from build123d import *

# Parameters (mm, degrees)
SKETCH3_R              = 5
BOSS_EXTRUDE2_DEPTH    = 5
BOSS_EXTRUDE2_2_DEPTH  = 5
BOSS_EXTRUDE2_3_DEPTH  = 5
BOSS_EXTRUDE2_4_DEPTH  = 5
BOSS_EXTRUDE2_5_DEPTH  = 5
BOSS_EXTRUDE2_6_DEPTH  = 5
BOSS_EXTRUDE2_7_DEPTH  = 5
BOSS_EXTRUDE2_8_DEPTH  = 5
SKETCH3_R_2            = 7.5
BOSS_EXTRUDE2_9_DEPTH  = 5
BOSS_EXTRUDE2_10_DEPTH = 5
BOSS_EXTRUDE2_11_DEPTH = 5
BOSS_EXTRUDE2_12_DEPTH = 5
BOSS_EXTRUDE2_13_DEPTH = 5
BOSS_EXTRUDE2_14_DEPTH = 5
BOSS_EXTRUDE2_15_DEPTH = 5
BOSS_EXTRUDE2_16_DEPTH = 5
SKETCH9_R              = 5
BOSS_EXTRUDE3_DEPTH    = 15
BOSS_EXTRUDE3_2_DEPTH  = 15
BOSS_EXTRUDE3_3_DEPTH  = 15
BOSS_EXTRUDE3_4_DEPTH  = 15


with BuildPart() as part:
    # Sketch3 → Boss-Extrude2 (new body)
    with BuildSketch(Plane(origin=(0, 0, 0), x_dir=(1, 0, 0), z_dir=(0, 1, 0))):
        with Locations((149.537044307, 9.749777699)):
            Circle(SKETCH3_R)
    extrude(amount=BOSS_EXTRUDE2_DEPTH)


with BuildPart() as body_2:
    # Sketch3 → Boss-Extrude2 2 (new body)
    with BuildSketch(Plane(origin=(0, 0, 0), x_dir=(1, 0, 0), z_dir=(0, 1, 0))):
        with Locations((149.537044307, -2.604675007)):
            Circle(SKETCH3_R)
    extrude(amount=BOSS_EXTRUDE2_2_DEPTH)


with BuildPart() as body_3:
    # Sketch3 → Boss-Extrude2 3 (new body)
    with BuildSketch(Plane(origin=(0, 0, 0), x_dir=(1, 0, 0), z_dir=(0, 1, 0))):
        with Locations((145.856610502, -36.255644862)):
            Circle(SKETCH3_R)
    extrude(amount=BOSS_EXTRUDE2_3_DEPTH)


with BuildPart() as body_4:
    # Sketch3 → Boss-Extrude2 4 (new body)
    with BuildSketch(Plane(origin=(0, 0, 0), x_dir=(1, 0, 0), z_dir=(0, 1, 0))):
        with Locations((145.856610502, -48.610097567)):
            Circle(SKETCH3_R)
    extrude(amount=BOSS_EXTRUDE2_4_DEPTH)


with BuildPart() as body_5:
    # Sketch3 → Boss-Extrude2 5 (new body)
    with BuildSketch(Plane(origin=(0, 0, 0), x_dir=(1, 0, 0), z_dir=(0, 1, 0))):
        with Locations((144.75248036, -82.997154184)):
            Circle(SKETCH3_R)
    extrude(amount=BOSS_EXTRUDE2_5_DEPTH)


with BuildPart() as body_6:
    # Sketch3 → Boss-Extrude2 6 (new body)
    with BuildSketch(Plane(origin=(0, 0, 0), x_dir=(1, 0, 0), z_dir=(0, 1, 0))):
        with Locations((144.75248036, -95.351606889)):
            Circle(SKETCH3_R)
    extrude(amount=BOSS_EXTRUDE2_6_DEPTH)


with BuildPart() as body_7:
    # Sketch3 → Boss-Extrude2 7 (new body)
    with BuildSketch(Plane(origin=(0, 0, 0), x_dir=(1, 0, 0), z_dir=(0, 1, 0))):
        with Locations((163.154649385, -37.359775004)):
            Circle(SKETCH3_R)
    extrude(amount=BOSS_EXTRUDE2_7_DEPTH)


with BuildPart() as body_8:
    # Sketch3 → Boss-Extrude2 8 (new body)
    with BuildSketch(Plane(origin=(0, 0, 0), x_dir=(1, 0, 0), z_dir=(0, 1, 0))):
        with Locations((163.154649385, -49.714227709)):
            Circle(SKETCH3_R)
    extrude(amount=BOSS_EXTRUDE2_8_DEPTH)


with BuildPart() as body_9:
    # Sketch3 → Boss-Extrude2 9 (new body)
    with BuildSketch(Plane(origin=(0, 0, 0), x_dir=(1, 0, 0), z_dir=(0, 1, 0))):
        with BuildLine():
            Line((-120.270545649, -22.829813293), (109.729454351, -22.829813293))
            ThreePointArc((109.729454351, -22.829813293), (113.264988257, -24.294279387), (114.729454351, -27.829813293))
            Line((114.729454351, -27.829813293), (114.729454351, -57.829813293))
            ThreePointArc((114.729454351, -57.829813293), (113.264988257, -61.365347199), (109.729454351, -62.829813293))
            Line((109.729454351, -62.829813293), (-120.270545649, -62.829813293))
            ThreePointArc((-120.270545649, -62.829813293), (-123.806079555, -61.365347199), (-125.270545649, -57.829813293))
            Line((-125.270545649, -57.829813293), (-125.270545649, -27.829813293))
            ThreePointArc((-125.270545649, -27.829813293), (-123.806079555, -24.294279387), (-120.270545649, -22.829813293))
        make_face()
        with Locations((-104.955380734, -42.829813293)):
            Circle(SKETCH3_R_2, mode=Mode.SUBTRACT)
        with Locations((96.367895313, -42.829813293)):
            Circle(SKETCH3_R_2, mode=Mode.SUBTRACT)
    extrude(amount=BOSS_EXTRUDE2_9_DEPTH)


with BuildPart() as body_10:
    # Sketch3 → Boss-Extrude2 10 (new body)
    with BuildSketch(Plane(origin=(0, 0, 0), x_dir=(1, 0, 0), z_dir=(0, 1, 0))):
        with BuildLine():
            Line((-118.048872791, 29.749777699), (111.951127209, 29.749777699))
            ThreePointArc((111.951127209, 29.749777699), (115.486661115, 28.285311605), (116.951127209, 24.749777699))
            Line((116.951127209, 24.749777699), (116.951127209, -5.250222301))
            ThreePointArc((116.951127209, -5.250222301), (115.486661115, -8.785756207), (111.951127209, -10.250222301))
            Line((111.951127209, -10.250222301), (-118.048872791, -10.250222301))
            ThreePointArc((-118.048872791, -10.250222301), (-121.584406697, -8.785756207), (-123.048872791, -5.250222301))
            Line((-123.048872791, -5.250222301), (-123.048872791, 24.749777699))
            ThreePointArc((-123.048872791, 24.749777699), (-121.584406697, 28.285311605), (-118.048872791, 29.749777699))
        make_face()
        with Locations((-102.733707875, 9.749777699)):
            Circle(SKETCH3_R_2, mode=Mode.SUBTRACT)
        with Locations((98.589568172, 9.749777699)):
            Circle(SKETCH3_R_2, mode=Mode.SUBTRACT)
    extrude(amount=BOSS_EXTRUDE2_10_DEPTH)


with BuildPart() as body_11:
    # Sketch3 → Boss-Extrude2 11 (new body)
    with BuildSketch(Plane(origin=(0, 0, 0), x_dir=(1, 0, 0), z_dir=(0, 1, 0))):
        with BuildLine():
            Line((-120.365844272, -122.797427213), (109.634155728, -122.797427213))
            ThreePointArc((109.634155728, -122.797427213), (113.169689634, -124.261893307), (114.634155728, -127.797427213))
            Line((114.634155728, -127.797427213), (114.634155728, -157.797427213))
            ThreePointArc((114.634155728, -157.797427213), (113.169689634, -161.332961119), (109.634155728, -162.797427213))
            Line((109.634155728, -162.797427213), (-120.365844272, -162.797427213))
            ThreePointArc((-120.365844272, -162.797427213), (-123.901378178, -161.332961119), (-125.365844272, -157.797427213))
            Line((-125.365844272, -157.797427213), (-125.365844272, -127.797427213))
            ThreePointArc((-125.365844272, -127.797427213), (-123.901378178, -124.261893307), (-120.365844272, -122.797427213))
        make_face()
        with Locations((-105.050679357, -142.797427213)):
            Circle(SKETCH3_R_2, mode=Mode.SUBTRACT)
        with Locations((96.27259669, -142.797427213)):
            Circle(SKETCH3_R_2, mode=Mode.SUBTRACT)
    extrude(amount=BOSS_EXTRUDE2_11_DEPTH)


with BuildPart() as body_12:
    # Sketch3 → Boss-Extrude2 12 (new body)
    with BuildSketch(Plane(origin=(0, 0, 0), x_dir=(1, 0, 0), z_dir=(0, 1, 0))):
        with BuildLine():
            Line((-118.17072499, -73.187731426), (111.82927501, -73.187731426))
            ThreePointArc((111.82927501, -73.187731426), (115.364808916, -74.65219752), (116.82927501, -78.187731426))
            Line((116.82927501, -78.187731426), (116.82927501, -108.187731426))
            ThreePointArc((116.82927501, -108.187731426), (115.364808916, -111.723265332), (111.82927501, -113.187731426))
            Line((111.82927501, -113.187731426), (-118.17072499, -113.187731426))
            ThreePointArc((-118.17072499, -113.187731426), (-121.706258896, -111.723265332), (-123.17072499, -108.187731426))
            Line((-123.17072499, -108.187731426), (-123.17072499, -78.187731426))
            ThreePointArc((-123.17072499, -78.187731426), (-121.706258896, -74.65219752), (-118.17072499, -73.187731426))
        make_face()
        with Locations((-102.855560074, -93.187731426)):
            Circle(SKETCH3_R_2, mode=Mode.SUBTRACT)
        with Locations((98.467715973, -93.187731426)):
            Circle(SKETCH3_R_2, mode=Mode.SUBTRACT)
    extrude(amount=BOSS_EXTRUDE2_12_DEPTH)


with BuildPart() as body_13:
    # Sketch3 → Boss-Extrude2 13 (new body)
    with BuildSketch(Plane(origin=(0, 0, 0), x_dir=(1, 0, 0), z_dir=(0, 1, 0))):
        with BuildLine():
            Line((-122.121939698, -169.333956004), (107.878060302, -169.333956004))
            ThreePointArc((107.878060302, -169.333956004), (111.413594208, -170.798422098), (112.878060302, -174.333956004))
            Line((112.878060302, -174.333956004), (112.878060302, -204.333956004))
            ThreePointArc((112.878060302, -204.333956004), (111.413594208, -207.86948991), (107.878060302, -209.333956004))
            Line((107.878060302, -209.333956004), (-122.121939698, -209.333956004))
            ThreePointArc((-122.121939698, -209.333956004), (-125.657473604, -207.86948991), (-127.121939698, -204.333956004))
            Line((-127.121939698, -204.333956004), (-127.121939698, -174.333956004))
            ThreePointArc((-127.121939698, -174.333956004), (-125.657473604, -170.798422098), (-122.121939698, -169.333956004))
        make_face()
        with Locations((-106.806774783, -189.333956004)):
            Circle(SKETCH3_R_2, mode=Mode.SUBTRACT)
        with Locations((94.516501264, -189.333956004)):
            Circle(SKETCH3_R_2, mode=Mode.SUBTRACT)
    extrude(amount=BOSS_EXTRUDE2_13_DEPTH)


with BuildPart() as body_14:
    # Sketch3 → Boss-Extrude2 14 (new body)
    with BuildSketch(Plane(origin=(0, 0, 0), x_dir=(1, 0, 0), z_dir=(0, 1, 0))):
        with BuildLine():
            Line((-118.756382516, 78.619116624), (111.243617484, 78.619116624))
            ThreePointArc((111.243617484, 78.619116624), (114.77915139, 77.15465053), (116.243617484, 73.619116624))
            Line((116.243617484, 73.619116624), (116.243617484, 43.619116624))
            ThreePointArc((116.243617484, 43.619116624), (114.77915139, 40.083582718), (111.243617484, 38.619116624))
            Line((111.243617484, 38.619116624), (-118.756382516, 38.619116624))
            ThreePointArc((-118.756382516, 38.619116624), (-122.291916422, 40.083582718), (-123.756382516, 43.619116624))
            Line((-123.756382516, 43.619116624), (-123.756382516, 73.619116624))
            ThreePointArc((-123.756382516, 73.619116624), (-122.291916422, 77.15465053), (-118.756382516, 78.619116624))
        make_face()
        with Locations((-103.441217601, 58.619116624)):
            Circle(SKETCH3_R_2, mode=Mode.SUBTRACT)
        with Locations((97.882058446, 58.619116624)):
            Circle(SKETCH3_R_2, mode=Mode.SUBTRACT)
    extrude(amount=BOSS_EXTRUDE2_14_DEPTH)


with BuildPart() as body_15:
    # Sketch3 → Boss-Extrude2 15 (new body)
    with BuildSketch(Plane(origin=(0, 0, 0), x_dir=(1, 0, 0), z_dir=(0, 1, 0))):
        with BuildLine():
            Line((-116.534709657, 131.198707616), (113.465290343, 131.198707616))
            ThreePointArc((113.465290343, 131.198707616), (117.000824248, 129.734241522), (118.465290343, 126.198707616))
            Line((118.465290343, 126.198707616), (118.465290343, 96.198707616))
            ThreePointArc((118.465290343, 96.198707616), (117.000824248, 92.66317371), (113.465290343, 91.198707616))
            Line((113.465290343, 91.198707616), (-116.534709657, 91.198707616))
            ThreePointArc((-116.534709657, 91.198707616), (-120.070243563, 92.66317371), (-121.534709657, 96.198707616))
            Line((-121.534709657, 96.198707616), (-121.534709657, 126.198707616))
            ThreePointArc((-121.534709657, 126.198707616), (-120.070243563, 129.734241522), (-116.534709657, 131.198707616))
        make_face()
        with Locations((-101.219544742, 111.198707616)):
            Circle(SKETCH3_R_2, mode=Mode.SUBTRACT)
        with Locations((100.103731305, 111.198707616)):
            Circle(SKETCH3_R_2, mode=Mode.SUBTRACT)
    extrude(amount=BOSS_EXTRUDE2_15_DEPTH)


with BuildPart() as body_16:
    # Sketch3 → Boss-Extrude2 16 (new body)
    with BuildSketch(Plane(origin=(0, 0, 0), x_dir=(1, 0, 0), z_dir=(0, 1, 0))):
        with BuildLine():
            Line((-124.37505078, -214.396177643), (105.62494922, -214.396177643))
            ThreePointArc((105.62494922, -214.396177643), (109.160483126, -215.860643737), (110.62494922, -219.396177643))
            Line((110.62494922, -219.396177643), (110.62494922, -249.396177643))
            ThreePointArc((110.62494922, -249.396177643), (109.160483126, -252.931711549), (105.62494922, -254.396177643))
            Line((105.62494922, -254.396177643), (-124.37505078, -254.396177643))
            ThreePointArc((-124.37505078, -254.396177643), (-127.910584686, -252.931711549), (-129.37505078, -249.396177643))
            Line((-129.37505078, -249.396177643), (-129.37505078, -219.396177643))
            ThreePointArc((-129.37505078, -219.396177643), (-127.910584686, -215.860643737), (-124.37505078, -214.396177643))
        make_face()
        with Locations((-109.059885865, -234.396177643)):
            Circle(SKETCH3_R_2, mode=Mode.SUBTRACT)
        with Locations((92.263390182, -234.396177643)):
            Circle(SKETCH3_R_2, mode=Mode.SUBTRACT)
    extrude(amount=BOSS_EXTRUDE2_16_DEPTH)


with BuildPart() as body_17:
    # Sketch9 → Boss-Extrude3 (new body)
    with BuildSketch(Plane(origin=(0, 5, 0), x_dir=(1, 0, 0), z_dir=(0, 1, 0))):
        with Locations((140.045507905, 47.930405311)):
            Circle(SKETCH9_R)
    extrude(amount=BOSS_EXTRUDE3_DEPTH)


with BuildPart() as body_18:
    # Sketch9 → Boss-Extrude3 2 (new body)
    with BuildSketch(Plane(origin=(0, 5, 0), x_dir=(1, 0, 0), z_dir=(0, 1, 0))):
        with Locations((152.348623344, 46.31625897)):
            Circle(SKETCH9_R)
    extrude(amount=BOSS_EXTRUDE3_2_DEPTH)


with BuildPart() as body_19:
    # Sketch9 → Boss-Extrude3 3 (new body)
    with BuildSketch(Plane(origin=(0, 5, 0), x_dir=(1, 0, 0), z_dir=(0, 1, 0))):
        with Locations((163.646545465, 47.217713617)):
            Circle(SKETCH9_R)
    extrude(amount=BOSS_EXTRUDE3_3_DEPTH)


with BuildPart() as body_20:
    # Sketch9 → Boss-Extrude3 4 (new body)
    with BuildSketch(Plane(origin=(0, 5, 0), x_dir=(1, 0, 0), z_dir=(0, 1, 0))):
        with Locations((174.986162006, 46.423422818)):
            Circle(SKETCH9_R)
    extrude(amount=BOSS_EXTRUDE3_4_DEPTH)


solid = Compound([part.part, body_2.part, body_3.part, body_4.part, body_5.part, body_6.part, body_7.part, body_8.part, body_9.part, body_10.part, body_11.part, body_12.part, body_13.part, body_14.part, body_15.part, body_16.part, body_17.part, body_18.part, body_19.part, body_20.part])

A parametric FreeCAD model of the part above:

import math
import FreeCAD as App
import Part
import Sketcher

V = App.Vector

doc = App.newDocument("Part")
body = doc.addObject("PartDesign::Body", "Body")

# Sketch on XZ plane
sketch1 = body.newObject("Sketcher::SketchObject", "Sketch")
sketch1.AttachmentSupport = (doc.getObject("XZ_Plane"), [""])
sketch1.MapMode = "FlatFace"
sketch1.addGeometry(Part.Circle(V(150, -10, 0), V(0, 0, 1), 5), False)
sketch1.addConstraint([
    Sketcher.Constraint("Diameter", 0, 10.0),
    Sketcher.Constraint("DistanceX", -1, 1, 0, 3, 149.537044),
    Sketcher.Constraint("DistanceY", 0, 3, -1, 1, 9.749778),
])
pad1 = body.newObject("PartDesign::Pad", "Pad")
pad1.Profile = sketch1
pad1.Length = 5
pad1.Reversed = True
body2 = doc.addObject("PartDesign::Body", "Body001")

# Sketch on XZ plane
sketch2 = body2.newObject("Sketcher::SketchObject", "Sketch001")
sketch2.AttachmentSupport = (doc.getObject("XZ_Plane001"), [""])
sketch2.MapMode = "FlatFace"
sketch2.addGeometry(Part.Circle(V(150, 3, 0), V(0, 0, 1), 5), False)
sketch2.addConstraint([
    Sketcher.Constraint("Diameter", 0, 10.0),
    Sketcher.Constraint("DistanceX", -1, 1, 0, 3, 149.537044),
    Sketcher.Constraint("DistanceY", -1, 1, 0, 3, 2.604675),
])
pad2 = body2.newObject("PartDesign::Pad", "Pad001")
pad2.Profile = sketch2
pad2.Length = 5
pad2.Reversed = True
body3 = doc.addObject("PartDesign::Body", "Body002")

# Sketch on XZ plane
sketch3 = body3.newObject("Sketcher::SketchObject", "Sketch002")
sketch3.AttachmentSupport = (doc.getObject("XZ_Plane002"), [""])
sketch3.MapMode = "FlatFace"
sketch3.addGeometry(Part.Circle(V(146, 36, 0), V(0, 0, 1), 5), False)
sketch3.addConstraint([
    Sketcher.Constraint("Diameter", 0, 10.0),
    Sketcher.Constraint("DistanceX", -1, 1, 0, 3, 145.856611),
    Sketcher.Constraint("DistanceY", -1, 1, 0, 3, 36.255645),
])
pad3 = body3.newObject("PartDesign::Pad", "Pad002")
pad3.Profile = sketch3
pad3.Length = 5
pad3.Reversed = True
body4 = doc.addObject("PartDesign::Body", "Body003")

# Sketch on XZ plane
sketch4 = body4.newObject("Sketcher::SketchObject", "Sketch003")
sketch4.AttachmentSupport = (doc.getObject("XZ_Plane003"), [""])
sketch4.MapMode = "FlatFace"
sketch4.addGeometry(Part.Circle(V(146, 49, 0), V(0, 0, 1), 5), False)
sketch4.addConstraint([
    Sketcher.Constraint("Diameter", 0, 10.0),
    Sketcher.Constraint("DistanceX", -1, 1, 0, 3, 145.856611),
    Sketcher.Constraint("DistanceY", -1, 1, 0, 3, 48.610098),
])
pad4 = body4.newObject("PartDesign::Pad", "Pad003")
pad4.Profile = sketch4
pad4.Length = 5
pad4.Reversed = True
body5 = doc.addObject("PartDesign::Body", "Body004")

# Sketch on XZ plane
sketch5 = body5.newObject("Sketcher::SketchObject", "Sketch004")
sketch5.AttachmentSupport = (doc.getObject("XZ_Plane004"), [""])
sketch5.MapMode = "FlatFace"
sketch5.addGeometry(Part.Circle(V(145, 83, 0), V(0, 0, 1), 5), False)
sketch5.addConstraint([
    Sketcher.Constraint("Diameter", 0, 10.0),
    Sketcher.Constraint("DistanceX", -1, 1, 0, 3, 144.75248),
    Sketcher.Constraint("DistanceY", -1, 1, 0, 3, 82.997154),
])
pad5 = body5.newObject("PartDesign::Pad", "Pad004")
pad5.Profile = sketch5
pad5.Length = 5
pad5.Reversed = True
body6 = doc.addObject("PartDesign::Body", "Body005")

# Sketch on XZ plane
sketch6 = body6.newObject("Sketcher::SketchObject", "Sketch005")
sketch6.AttachmentSupport = (doc.getObject("XZ_Plane005"), [""])
sketch6.MapMode = "FlatFace"
sketch6.addGeometry(Part.Circle(V(145, 95, 0), V(0, 0, 1), 5), False)
sketch6.addConstraint([
    Sketcher.Constraint("Diameter", 0, 10.0),
    Sketcher.Constraint("DistanceX", -1, 1, 0, 3, 144.75248),
    Sketcher.Constraint("DistanceY", -1, 1, 0, 3, 95.351607),
])
pad6 = body6.newObject("PartDesign::Pad", "Pad005")
pad6.Profile = sketch6
pad6.Length = 5
pad6.Reversed = True
body7 = doc.addObject("PartDesign::Body", "Body006")

# Sketch on XZ plane
sketch7 = body7.newObject("Sketcher::SketchObject", "Sketch006")
sketch7.AttachmentSupport = (doc.getObject("XZ_Plane006"), [""])
sketch7.MapMode = "FlatFace"
sketch7.addGeometry(Part.Circle(V(163, 37, 0), V(0, 0, 1), 5), False)
sketch7.addConstraint([
    Sketcher.Constraint("Diameter", 0, 10.0),
    Sketcher.Constraint("DistanceX", -1, 1, 0, 3, 163.154649),
    Sketcher.Constraint("DistanceY", -1, 1, 0, 3, 37.359775),
])
pad7 = body7.newObject("PartDesign::Pad", "Pad006")
pad7.Profile = sketch7
pad7.Length = 5
pad7.Reversed = True
body8 = doc.addObject("PartDesign::Body", "Body007")

# Sketch on XZ plane
sketch8 = body8.newObject("Sketcher::SketchObject", "Sketch007")
sketch8.AttachmentSupport = (doc.getObject("XZ_Plane007"), [""])
sketch8.MapMode = "FlatFace"
sketch8.addGeometry(Part.Circle(V(163, 50, 0), V(0, 0, 1), 5), False)
sketch8.addConstraint([
    Sketcher.Constraint("Diameter", 0, 10.0),
    Sketcher.Constraint("DistanceX", -1, 1, 0, 3, 163.154649),
    Sketcher.Constraint("DistanceY", -1, 1, 0, 3, 49.714228),
])
pad8 = body8.newObject("PartDesign::Pad", "Pad007")
pad8.Profile = sketch8
pad8.Length = 5
pad8.Reversed = True
body9 = doc.addObject("PartDesign::Body", "Body008")

# Sketch on XZ plane
sketch9 = body9.newObject("Sketcher::SketchObject", "Sketch008")
sketch9.AttachmentSupport = (doc.getObject("XZ_Plane008"), [""])
sketch9.MapMode = "FlatFace"
sketch9.addGeometry([
    Part.LineSegment(V(110, 23, 0), V(-120, 23, 0)),  # 0
    Part.ArcOfCircle(Part.Circle(V(-120, 28, 0), V(0, 0, 1), 5), math.radians(180), math.radians(270)),  # 1
    Part.LineSegment(V(-125, 28, 0), V(-125, 58, 0)),  # 2
    Part.ArcOfCircle(Part.Circle(V(-120, 58, 0), V(0, 0, 1), 5), math.radians(90), math.radians(180)),  # 3
    Part.LineSegment(V(-120, 63, 0), V(110, 63, 0)),  # 4
    Part.ArcOfCircle(Part.Circle(V(110, 58, 0), V(0, 0, 1), 5), math.radians(0), math.radians(90)),  # 5
    Part.LineSegment(V(115, 58, 0), V(115, 28, 0)),  # 6
    Part.ArcOfCircle(Part.Circle(V(110, 28, 0), V(0, 0, 1), 5), math.radians(-90), math.radians(0)),  # 7
    Part.Circle(V(96, 43, 0), V(0, 0, 1), 8),  # 8
    Part.Circle(V(-105, 43, 0), V(0, 0, 1), 8),  # 9
], False)
sketch9.addConstraint([
    Sketcher.Constraint("Tangent", 0, 2, 1, 2),
    Sketcher.Constraint("Tangent", 1, 1, 2, 1),
    Sketcher.Constraint("Tangent", 2, 2, 3, 2),
    Sketcher.Constraint("Tangent", 3, 1, 4, 1),
    Sketcher.Constraint("Tangent", 4, 2, 5, 2),
    Sketcher.Constraint("Tangent", 5, 1, 6, 1),
    Sketcher.Constraint("Tangent", 6, 2, 7, 2),
    Sketcher.Constraint("Tangent", 7, 1, 0, 1),
    Sketcher.Constraint("Horizontal", 0),
    Sketcher.Constraint("Vertical", 2),
    Sketcher.Constraint("Horizontal", 4),
    Sketcher.Constraint("Vertical", 6),
    Sketcher.Constraint("Equal", 1, 3),
    Sketcher.Constraint("Equal", 3, 5),
    Sketcher.Constraint("Equal", 5, 7),
    Sketcher.Constraint("Equal", 8, 9),
    Sketcher.Constraint("Horizontal", 8, 3, 9, 3),
    Sketcher.Constraint("Diameter", 8, 15.0),
    Sketcher.Constraint("Radius", 1, 5.0),
    Sketcher.Constraint("DistanceX", 0, 2, 0, 1, 230.0),
    Sketcher.Constraint("DistanceY", 2, 1, 2, 2, 30.0),
    Sketcher.Constraint("DistanceY", 8, 3, 5, 3, 15.0),
    Sketcher.Constraint("DistanceX", 9, 3, -1, 1, 104.955381),
    Sketcher.Constraint("DistanceX", 8, 3, 5, 3, 13.361559),
    Sketcher.Constraint("DistanceX", 1, 3, -1, 1, 120.270546),
    Sketcher.Constraint("DistanceY", -1, 1, 1, 3, 27.829813),
])
pad9 = body9.newObject("PartDesign::Pad", "Pad008")
pad9.Profile = sketch9
pad9.Length = 5
pad9.Reversed = True
body10 = doc.addObject("PartDesign::Body", "Body009")

# Sketch on XZ plane
sketch10 = body10.newObject("Sketcher::SketchObject", "Sketch009")
sketch10.AttachmentSupport = (doc.getObject("XZ_Plane009"), [""])
sketch10.MapMode = "FlatFace"
sketch10.addGeometry([
    Part.LineSegment(V(112, -30, 0), V(-118, -30, 0)),  # 0
    Part.ArcOfCircle(Part.Circle(V(-118, -25, 0), V(0, 0, 1), 5), math.radians(180), math.radians(270)),  # 1
    Part.LineSegment(V(-123, -25, 0), V(-123, 5, 0)),  # 2
    Part.ArcOfCircle(Part.Circle(V(-118, 5, 0), V(0, 0, 1), 5), math.radians(90), math.radians(180)),  # 3
    Part.LineSegment(V(-118, 10, 0), V(112, 10, 0)),  # 4
    Part.ArcOfCircle(Part.Circle(V(112, 5, 0), V(0, 0, 1), 5), math.radians(0), math.radians(90)),  # 5
    Part.LineSegment(V(117, 5, 0), V(117, -25, 0)),  # 6
    Part.ArcOfCircle(Part.Circle(V(112, -25, 0), V(0, 0, 1), 5), math.radians(-90), math.radians(0)),  # 7
    Part.Circle(V(99, -10, 0), V(0, 0, 1), 8),  # 8
    Part.Circle(V(-103, -10, 0), V(0, 0, 1), 8),  # 9
], False)
sketch10.addConstraint([
    Sketcher.Constraint("Tangent", 0, 2, 1, 2),
    Sketcher.Constraint("Tangent", 1, 1, 2, 1),
    Sketcher.Constraint("Tangent", 2, 2, 3, 2),
    Sketcher.Constraint("Tangent", 3, 1, 4, 1),
    Sketcher.Constraint("Tangent", 4, 2, 5, 2),
    Sketcher.Constraint("Tangent", 5, 1, 6, 1),
    Sketcher.Constraint("Tangent", 6, 2, 7, 2),
    Sketcher.Constraint("Tangent", 7, 1, 0, 1),
    Sketcher.Constraint("Horizontal", 0),
    Sketcher.Constraint("Vertical", 2),
    Sketcher.Constraint("Horizontal", 4),
    Sketcher.Constraint("Vertical", 6),
    Sketcher.Constraint("Equal", 1, 3),
    Sketcher.Constraint("Equal", 3, 5),
    Sketcher.Constraint("Equal", 5, 7),
    Sketcher.Constraint("Equal", 8, 9),
    Sketcher.Constraint("Horizontal", 8, 3, 9, 3),
    Sketcher.Constraint("Diameter", 8, 15.0),
    Sketcher.Constraint("Radius", 1, 5.0),
    Sketcher.Constraint("DistanceX", 0, 2, 0, 1, 230.0),
    Sketcher.Constraint("DistanceY", 2, 1, 2, 2, 30.0),
    Sketcher.Constraint("DistanceY", 8, 3, 5, 3, 15.0),
    Sketcher.Constraint("DistanceX", -1, 1, 8, 3, 98.589568),
    Sketcher.Constraint("DistanceX", 8, 3, 5, 3, 13.361559),
    Sketcher.Constraint("DistanceY", 1, 3, -1, 1, 24.749778),
    Sketcher.Constraint("DistanceX", 9, 3, -1, 1, 102.733708),
])
pad10 = body10.newObject("PartDesign::Pad", "Pad009")
pad10.Profile = sketch10
pad10.Length = 5
pad10.Reversed = True
body11 = doc.addObject("PartDesign::Body", "Body010")

# Sketch on XZ plane
sketch11 = body11.newObject("Sketcher::SketchObject", "Sketch010")
sketch11.AttachmentSupport = (doc.getObject("XZ_Plane010"), [""])
sketch11.MapMode = "FlatFace"
sketch11.addGeometry([
    Part.LineSegment(V(110, 123, 0), V(-120, 123, 0)),  # 0
    Part.ArcOfCircle(Part.Circle(V(-120, 128, 0), V(0, 0, 1), 5), math.radians(180), math.radians(270)),  # 1
    Part.LineSegment(V(-125, 128, 0), V(-125, 158, 0)),  # 2
    Part.ArcOfCircle(Part.Circle(V(-120, 158, 0), V(0, 0, 1), 5), math.radians(90), math.radians(180)),  # 3
    Part.LineSegment(V(-120, 163, 0), V(110, 163, 0)),  # 4
    Part.ArcOfCircle(Part.Circle(V(110, 158, 0), V(0, 0, 1), 5), math.radians(0), math.radians(90)),  # 5
    Part.LineSegment(V(115, 158, 0), V(115, 128, 0)),  # 6
    Part.ArcOfCircle(Part.Circle(V(110, 128, 0), V(0, 0, 1), 5), math.radians(-90), math.radians(0)),  # 7
    Part.Circle(V(96, 143, 0), V(0, 0, 1), 8),  # 8
    Part.Circle(V(-105, 143, 0), V(0, 0, 1), 8),  # 9
], False)
sketch11.addConstraint([
    Sketcher.Constraint("Tangent", 0, 2, 1, 2),
    Sketcher.Constraint("Tangent", 1, 1, 2, 1),
    Sketcher.Constraint("Tangent", 2, 2, 3, 2),
    Sketcher.Constraint("Tangent", 3, 1, 4, 1),
    Sketcher.Constraint("Tangent", 4, 2, 5, 2),
    Sketcher.Constraint("Tangent", 5, 1, 6, 1),
    Sketcher.Constraint("Tangent", 6, 2, 7, 2),
    Sketcher.Constraint("Tangent", 7, 1, 0, 1),
    Sketcher.Constraint("Horizontal", 0),
    Sketcher.Constraint("Vertical", 2),
    Sketcher.Constraint("Horizontal", 4),
    Sketcher.Constraint("Vertical", 6),
    Sketcher.Constraint("Equal", 1, 3),
    Sketcher.Constraint("Equal", 3, 5),
    Sketcher.Constraint("Equal", 5, 7),
    Sketcher.Constraint("Equal", 8, 9),
    Sketcher.Constraint("Horizontal", 8, 3, 9, 3),
    Sketcher.Constraint("Diameter", 8, 15.0),
    Sketcher.Constraint("Radius", 1, 5.0),
    Sketcher.Constraint("DistanceX", 0, 2, 0, 1, 230.0),
    Sketcher.Constraint("DistanceY", 2, 1, 2, 2, 30.0),
    Sketcher.Constraint("DistanceY", 7, 3, 8, 3, 15.0),
    Sketcher.Constraint("DistanceX", 9, 3, -1, 1, 105.050679),
    Sketcher.Constraint("DistanceX", 8, 3, 7, 3, 13.361559),
    Sketcher.Constraint("DistanceX", 1, 3, -1, 1, 120.365844),
    Sketcher.Constraint("DistanceY", -1, 1, 1, 3, 127.797427),
])
pad11 = body11.newObject("PartDesign::Pad", "Pad010")
pad11.Profile = sketch11
pad11.Length = 5
pad11.Reversed = True
body12 = doc.addObject("PartDesign::Body", "Body011")

# Sketch on XZ plane
sketch12 = body12.newObject("Sketcher::SketchObject", "Sketch011")
sketch12.AttachmentSupport = (doc.getObject("XZ_Plane011"), [""])
sketch12.MapMode = "FlatFace"
sketch12.addGeometry([
    Part.LineSegment(V(112, 73, 0), V(-118, 73, 0)),  # 0
    Part.ArcOfCircle(Part.Circle(V(-118, 78, 0), V(0, 0, 1), 5), math.radians(180), math.radians(270)),  # 1
    Part.LineSegment(V(-123, 78, 0), V(-123, 108, 0)),  # 2
    Part.ArcOfCircle(Part.Circle(V(-118, 108, 0), V(0, 0, 1), 5), math.radians(90), math.radians(180)),  # 3
    Part.LineSegment(V(-118, 113, 0), V(112, 113, 0)),  # 4
    Part.ArcOfCircle(Part.Circle(V(112, 108, 0), V(0, 0, 1), 5), math.radians(0), math.radians(90)),  # 5
    Part.LineSegment(V(117, 108, 0), V(117, 78, 0)),  # 6
    Part.ArcOfCircle(Part.Circle(V(112, 78, 0), V(0, 0, 1), 5), math.radians(-90), math.radians(0)),  # 7
    Part.Circle(V(98, 93, 0), V(0, 0, 1), 8),  # 8
    Part.Circle(V(-103, 93, 0), V(0, 0, 1), 8),  # 9
], False)
sketch12.addConstraint([
    Sketcher.Constraint("Tangent", 0, 2, 1, 2),
    Sketcher.Constraint("Tangent", 1, 1, 2, 1),
    Sketcher.Constraint("Tangent", 2, 2, 3, 2),
    Sketcher.Constraint("Tangent", 3, 1, 4, 1),
    Sketcher.Constraint("Tangent", 4, 2, 5, 2),
    Sketcher.Constraint("Tangent", 5, 1, 6, 1),
    Sketcher.Constraint("Tangent", 6, 2, 7, 2),
    Sketcher.Constraint("Tangent", 7, 1, 0, 1),
    Sketcher.Constraint("Horizontal", 0),
    Sketcher.Constraint("Vertical", 2),
    Sketcher.Constraint("Horizontal", 4),
    Sketcher.Constraint("Vertical", 6),
    Sketcher.Constraint("Equal", 1, 3),
    Sketcher.Constraint("Equal", 3, 5),
    Sketcher.Constraint("Equal", 5, 7),
    Sketcher.Constraint("Equal", 8, 9),
    Sketcher.Constraint("Horizontal", 8, 3, 9, 3),
    Sketcher.Constraint("Diameter", 8, 15.0),
    Sketcher.Constraint("Radius", 1, 5.0),
    Sketcher.Constraint("DistanceX", 0, 2, 0, 1, 230.0),
    Sketcher.Constraint("DistanceY", 2, 1, 2, 2, 30.0),
    Sketcher.Constraint("DistanceY", 8, 3, 5, 3, 15.0),
    Sketcher.Constraint("DistanceY", -1, 1, 1, 3, 78.187731),
    Sketcher.Constraint("DistanceX", 9, 3, -1, 1, 102.85556),
    Sketcher.Constraint("DistanceX", 8, 3, 5, 3, 13.361559),
    Sketcher.Constraint("DistanceX", 1, 3, -1, 1, 118.170725),
])
pad12 = body12.newObject("PartDesign::Pad", "Pad011")
pad12.Profile = sketch12
pad12.Length = 5
pad12.Reversed = True
body13 = doc.addObject("PartDesign::Body", "Body012")

# Sketch on XZ plane
sketch13 = body13.newObject("Sketcher::SketchObject", "Sketch012")
sketch13.AttachmentSupport = (doc.getObject("XZ_Plane012"), [""])
sketch13.MapMode = "FlatFace"
sketch13.addGeometry([
    Part.LineSegment(V(108, 169, 0), V(-122, 169, 0)),  # 0
    Part.ArcOfCircle(Part.Circle(V(-122, 174, 0), V(0, 0, 1), 5), math.radians(180), math.radians(270)),  # 1
    Part.LineSegment(V(-127, 174, 0), V(-127, 204, 0)),  # 2
    Part.ArcOfCircle(Part.Circle(V(-122, 204, 0), V(0, 0, 1), 5), math.radians(90), math.radians(180)),  # 3
    Part.LineSegment(V(-122, 209, 0), V(108, 209, 0)),  # 4
    Part.ArcOfCircle(Part.Circle(V(108, 204, 0), V(0, 0, 1), 5), math.radians(0), math.radians(90)),  # 5
    Part.LineSegment(V(113, 204, 0), V(113, 174, 0)),  # 6
    Part.ArcOfCircle(Part.Circle(V(108, 174, 0), V(0, 0, 1), 5), math.radians(-90), math.radians(0)),  # 7
    Part.Circle(V(95, 189, 0), V(0, 0, 1), 8),  # 8
    Part.Circle(V(-107, 189, 0), V(0, 0, 1), 8),  # 9
], False)
sketch13.addConstraint([
    Sketcher.Constraint("Tangent", 0, 2, 1, 2),
    Sketcher.Constraint("Tangent", 1, 1, 2, 1),
    Sketcher.Constraint("Tangent", 2, 2, 3, 2),
    Sketcher.Constraint("Tangent", 3, 1, 4, 1),
    Sketcher.Constraint("Tangent", 4, 2, 5, 2),
    Sketcher.Constraint("Tangent", 5, 1, 6, 1),
    Sketcher.Constraint("Tangent", 6, 2, 7, 2),
    Sketcher.Constraint("Tangent", 7, 1, 0, 1),
    Sketcher.Constraint("Horizontal", 0),
    Sketcher.Constraint("Vertical", 2),
    Sketcher.Constraint("Horizontal", 4),
    Sketcher.Constraint("Vertical", 6),
    Sketcher.Constraint("Equal", 1, 3),
    Sketcher.Constraint("Equal", 3, 5),
    Sketcher.Constraint("Equal", 5, 7),
    Sketcher.Constraint("Equal", 8, 9),
    Sketcher.Constraint("Horizontal", 8, 3, 9, 3),
    Sketcher.Constraint("Diameter", 8, 15.0),
    Sketcher.Constraint("Radius", 1, 5.0),
    Sketcher.Constraint("DistanceX", 0, 2, 0, 1, 230.0),
    Sketcher.Constraint("DistanceY", 2, 1, 2, 2, 30.0),
    Sketcher.Constraint("DistanceY", 8, 3, 5, 3, 15.0),
    Sketcher.Constraint("DistanceX", -1, 1, 8, 3, 94.516501),
    Sketcher.Constraint("DistanceX", 1, 3, -1, 1, 122.12194),
    Sketcher.Constraint("DistanceY", -1, 1, 1, 3, 174.333956),
    Sketcher.Constraint("DistanceX", 9, 3, -1, 1, 106.806775),
])
pad13 = body13.newObject("PartDesign::Pad", "Pad012")
pad13.Profile = sketch13
pad13.Length = 5
pad13.Reversed = True
body14 = doc.addObject("PartDesign::Body", "Body013")

# Sketch on XZ plane
sketch14 = body14.newObject("Sketcher::SketchObject", "Sketch013")
sketch14.AttachmentSupport = (doc.getObject("XZ_Plane013"), [""])
sketch14.MapMode = "FlatFace"
sketch14.addGeometry([
    Part.LineSegment(V(111, -79, 0), V(-119, -79, 0)),  # 0
    Part.ArcOfCircle(Part.Circle(V(-119, -74, 0), V(0, 0, 1), 5), math.radians(180), math.radians(270)),  # 1
    Part.LineSegment(V(-124, -74, 0), V(-124, -44, 0)),  # 2
    Part.ArcOfCircle(Part.Circle(V(-119, -44, 0), V(0, 0, 1), 5), math.radians(90), math.radians(180)),  # 3
    Part.LineSegment(V(-119, -39, 0), V(111, -39, 0)),  # 4
    Part.ArcOfCircle(Part.Circle(V(111, -44, 0), V(0, 0, 1), 5), math.radians(0), math.radians(90)),  # 5
    Part.LineSegment(V(116, -44, 0), V(116, -74, 0)),  # 6
    Part.ArcOfCircle(Part.Circle(V(111, -74, 0), V(0, 0, 1), 5), math.radians(-90), math.radians(0)),  # 7
    Part.Circle(V(98, -59, 0), V(0, 0, 1), 8),  # 8
    Part.Circle(V(-103, -59, 0), V(0, 0, 1), 8),  # 9
], False)
sketch14.addConstraint([
    Sketcher.Constraint("Tangent", 0, 2, 1, 2),
    Sketcher.Constraint("Tangent", 1, 1, 2, 1),
    Sketcher.Constraint("Tangent", 2, 2, 3, 2),
    Sketcher.Constraint("Tangent", 3, 1, 4, 1),
    Sketcher.Constraint("Tangent", 4, 2, 5, 2),
    Sketcher.Constraint("Tangent", 5, 1, 6, 1),
    Sketcher.Constraint("Tangent", 6, 2, 7, 2),
    Sketcher.Constraint("Tangent", 7, 1, 0, 1),
    Sketcher.Constraint("Horizontal", 0),
    Sketcher.Constraint("Vertical", 2),
    Sketcher.Constraint("Horizontal", 4),
    Sketcher.Constraint("Vertical", 6),
    Sketcher.Constraint("Equal", 1, 3),
    Sketcher.Constraint("Equal", 3, 5),
    Sketcher.Constraint("Equal", 5, 7),
    Sketcher.Constraint("Equal", 8, 9),
    Sketcher.Constraint("Horizontal", 8, 3, 9, 3),
    Sketcher.Constraint("Diameter", 8, 15.0),
    Sketcher.Constraint("Radius", 1, 5.0),
    Sketcher.Constraint("DistanceX", 0, 2, 0, 1, 230.0),
    Sketcher.Constraint("DistanceY", 2, 1, 2, 2, 30.0),
    Sketcher.Constraint("DistanceY", 8, 3, 5, 3, 15.0),
    Sketcher.Constraint("DistanceX", -1, 1, 8, 3, 97.882058),
    Sketcher.Constraint("DistanceX", 8, 3, 5, 3, 13.361559),
    Sketcher.Constraint("DistanceY", 1, 3, -1, 1, 73.619117),
    Sketcher.Constraint("DistanceX", 9, 3, -1, 1, 103.441218),
])
pad14 = body14.newObject("PartDesign::Pad", "Pad013")
pad14.Profile = sketch14
pad14.Length = 5
pad14.Reversed = True
body15 = doc.addObject("PartDesign::Body", "Body014")

# Sketch on XZ plane
sketch15 = body15.newObject("Sketcher::SketchObject", "Sketch014")
sketch15.AttachmentSupport = (doc.getObject("XZ_Plane014"), [""])
sketch15.MapMode = "FlatFace"
sketch15.addGeometry([
    Part.LineSegment(V(113, -131, 0), V(-117, -131, 0)),  # 0
    Part.ArcOfCircle(Part.Circle(V(-117, -126, 0), V(0, 0, 1), 5), math.radians(180), math.radians(270)),  # 1
    Part.LineSegment(V(-122, -126, 0), V(-122, -96, 0)),  # 2
    Part.ArcOfCircle(Part.Circle(V(-117, -96, 0), V(0, 0, 1), 5), math.radians(90), math.radians(180)),  # 3
    Part.LineSegment(V(-117, -91, 0), V(113, -91, 0)),  # 4
    Part.ArcOfCircle(Part.Circle(V(113, -96, 0), V(0, 0, 1), 5), math.radians(0), math.radians(90)),  # 5
    Part.LineSegment(V(118, -96, 0), V(118, -126, 0)),  # 6
    Part.ArcOfCircle(Part.Circle(V(113, -126, 0), V(0, 0, 1), 5), math.radians(-90), math.radians(0)),  # 7
    Part.Circle(V(100, -111, 0), V(0, 0, 1), 8),  # 8
    Part.Circle(V(-101, -111, 0), V(0, 0, 1), 8),  # 9
], False)
sketch15.addConstraint([
    Sketcher.Constraint("Tangent", 0, 2, 1, 2),
    Sketcher.Constraint("Tangent", 1, 1, 2, 1),
    Sketcher.Constraint("Tangent", 2, 2, 3, 2),
    Sketcher.Constraint("Tangent", 3, 1, 4, 1),
    Sketcher.Constraint("Tangent", 4, 2, 5, 2),
    Sketcher.Constraint("Tangent", 5, 1, 6, 1),
    Sketcher.Constraint("Tangent", 6, 2, 7, 2),
    Sketcher.Constraint("Tangent", 7, 1, 0, 1),
    Sketcher.Constraint("Horizontal", 0),
    Sketcher.Constraint("Vertical", 2),
    Sketcher.Constraint("Horizontal", 4),
    Sketcher.Constraint("Vertical", 6),
    Sketcher.Constraint("Equal", 1, 3),
    Sketcher.Constraint("Equal", 3, 5),
    Sketcher.Constraint("Equal", 5, 7),
    Sketcher.Constraint("Equal", 8, 9),
    Sketcher.Constraint("Horizontal", 8, 3, 9, 3),
    Sketcher.Constraint("Diameter", 8, 15.0),
    Sketcher.Constraint("Radius", 1, 5.0),
    Sketcher.Constraint("DistanceX", 0, 2, 0, 1, 230.0),
    Sketcher.Constraint("DistanceY", 2, 1, 2, 2, 30.0),
    Sketcher.Constraint("DistanceY", 8, 3, 5, 3, 15.0),
    Sketcher.Constraint("DistanceX", 1, 3, -1, 1, 116.53471),
    Sketcher.Constraint("DistanceX", -1, 1, 8, 3, 100.103731),
    Sketcher.Constraint("DistanceY", 1, 3, -1, 1, 126.198708),
    Sketcher.Constraint("DistanceX", 9, 3, -1, 1, 101.219545),
])
pad15 = body15.newObject("PartDesign::Pad", "Pad014")
pad15.Profile = sketch15
pad15.Length = 5
pad15.Reversed = True
body16 = doc.addObject("PartDesign::Body", "Body015")

# Sketch on XZ plane
sketch16 = body16.newObject("Sketcher::SketchObject", "Sketch015")
sketch16.AttachmentSupport = (doc.getObject("XZ_Plane015"), [""])
sketch16.MapMode = "FlatFace"
sketch16.addGeometry([
    Part.LineSegment(V(106, 214, 0), V(-124, 214, 0)),  # 0
    Part.ArcOfCircle(Part.Circle(V(-124, 219, 0), V(0, 0, 1), 5), math.radians(180), math.radians(270)),  # 1
    Part.LineSegment(V(-129, 219, 0), V(-129, 249, 0)),  # 2
    Part.ArcOfCircle(Part.Circle(V(-124, 249, 0), V(0, 0, 1), 5), math.radians(90), math.radians(180)),  # 3
    Part.LineSegment(V(-124, 254, 0), V(106, 254, 0)),  # 4
    Part.ArcOfCircle(Part.Circle(V(106, 249, 0), V(0, 0, 1), 5), math.radians(0), math.radians(90)),  # 5
    Part.LineSegment(V(111, 249, 0), V(111, 219, 0)),  # 6
    Part.ArcOfCircle(Part.Circle(V(106, 219, 0), V(0, 0, 1), 5), math.radians(-90), math.radians(0)),  # 7
    Part.Circle(V(92, 234, 0), V(0, 0, 1), 8),  # 8
    Part.Circle(V(-109, 234, 0), V(0, 0, 1), 8),  # 9
], False)
sketch16.addConstraint([
    Sketcher.Constraint("Tangent", 0, 2, 1, 2),
    Sketcher.Constraint("Tangent", 1, 1, 2, 1),
    Sketcher.Constraint("Tangent", 2, 2, 3, 2),
    Sketcher.Constraint("Tangent", 3, 1, 4, 1),
    Sketcher.Constraint("Tangent", 4, 2, 5, 2),
    Sketcher.Constraint("Tangent", 5, 1, 6, 1),
    Sketcher.Constraint("Tangent", 6, 2, 7, 2),
    Sketcher.Constraint("Tangent", 7, 1, 0, 1),
    Sketcher.Constraint("Horizontal", 0),
    Sketcher.Constraint("Vertical", 2),
    Sketcher.Constraint("Horizontal", 4),
    Sketcher.Constraint("Vertical", 6),
    Sketcher.Constraint("Equal", 1, 3),
    Sketcher.Constraint("Equal", 3, 5),
    Sketcher.Constraint("Equal", 5, 7),
    Sketcher.Constraint("Equal", 8, 9),
    Sketcher.Constraint("Horizontal", 8, 3, 9, 3),
    Sketcher.Constraint("Diameter", 8, 15.0),
    Sketcher.Constraint("Radius", 1, 5.0),
    Sketcher.Constraint("DistanceX", 0, 2, 0, 1, 230.0),
    Sketcher.Constraint("DistanceY", 2, 1, 2, 2, 30.0),
    Sketcher.Constraint("DistanceY", 8, 3, 5, 3, 15.0),
    Sketcher.Constraint("DistanceX", 1, 3, -1, 1, 124.375051),
    Sketcher.Constraint("DistanceX", -1, 1, 8, 3, 92.26339),
    Sketcher.Constraint("DistanceY", -1, 1, 1, 3, 219.396178),
    Sketcher.Constraint("DistanceX", 9, 3, -1, 1, 109.059886),
])
pad16 = body16.newObject("PartDesign::Pad", "Pad015")
pad16.Profile = sketch16
pad16.Length = 5
pad16.Reversed = True
body17 = doc.addObject("PartDesign::Body", "Body016")

# Sketch on XZ plane
sketch17 = body17.newObject("Sketcher::SketchObject", "Sketch016")
sketch17.AttachmentSupport = (doc.getObject("XZ_Plane016"), [""])
sketch17.MapMode = "FlatFace"
sketch17.AttachmentOffset = App.Placement(V(0, 0, -5), App.Rotation())
sketch17.addGeometry(Part.Circle(V(140, -48, 0), V(0, 0, 1), 5), False)
sketch17.addConstraint([
    Sketcher.Constraint("Diameter", 0, 10.0),
    Sketcher.Constraint("DistanceX", -1, 1, 0, 3, 140.045508),
    Sketcher.Constraint("DistanceY", 0, 3, -1, 1, 47.930405),
])
pad17 = body17.newObject("PartDesign::Pad", "Pad016")
pad17.Profile = sketch17
pad17.Length = 15
pad17.Reversed = True
body18 = doc.addObject("PartDesign::Body", "Body017")

# Sketch on XZ plane
sketch18 = body18.newObject("Sketcher::SketchObject", "Sketch017")
sketch18.AttachmentSupport = (doc.getObject("XZ_Plane017"), [""])
sketch18.MapMode = "FlatFace"
sketch18.AttachmentOffset = App.Placement(V(0, 0, -5), App.Rotation())
sketch18.addGeometry(Part.Circle(V(152, -46, 0), V(0, 0, 1), 5), False)
sketch18.addConstraint([
    Sketcher.Constraint("Diameter", 0, 10.0),
    Sketcher.Constraint("DistanceY", 0, 3, -1, 1, 46.316259),
    Sketcher.Constraint("DistanceX", -1, 1, 0, 3, 152.348623),
])
pad18 = body18.newObject("PartDesign::Pad", "Pad017")
pad18.Profile = sketch18
pad18.Length = 15
pad18.Reversed = True
body19 = doc.addObject("PartDesign::Body", "Body018")

# Sketch on XZ plane
sketch19 = body19.newObject("Sketcher::SketchObject", "Sketch018")
sketch19.AttachmentSupport = (doc.getObject("XZ_Plane018"), [""])
sketch19.MapMode = "FlatFace"
sketch19.AttachmentOffset = App.Placement(V(0, 0, -5), App.Rotation())
sketch19.addGeometry(Part.Circle(V(164, -47, 0), V(0, 0, 1), 5), False)
sketch19.addConstraint([
    Sketcher.Constraint("Diameter", 0, 10.0),
    Sketcher.Constraint("DistanceX", -1, 1, 0, 3, 163.646545),
    Sketcher.Constraint("DistanceY", 0, 3, -1, 1, 47.217714),
])
pad19 = body19.newObject("PartDesign::Pad", "Pad018")
pad19.Profile = sketch19
pad19.Length = 15
pad19.Reversed = True
body20 = doc.addObject("PartDesign::Body", "Body019")

# Sketch on XZ plane
sketch20 = body20.newObject("Sketcher::SketchObject", "Sketch019")
sketch20.AttachmentSupport = (doc.getObject("XZ_Plane019"), [""])
sketch20.MapMode = "FlatFace"
sketch20.AttachmentOffset = App.Placement(V(0, 0, -5), App.Rotation())
sketch20.addGeometry(Part.Circle(V(175, -46, 0), V(0, 0, 1), 5), False)
sketch20.addConstraint([
    Sketcher.Constraint("Diameter", 0, 10.0),
    Sketcher.Constraint("DistanceX", -1, 1, 0, 3, 174.986162),
    Sketcher.Constraint("DistanceY", 0, 3, -1, 1, 46.423423),
])
pad20 = body20.newObject("PartDesign::Pad", "Pad019")
pad20.Profile = sketch20
pad20.Length = 15
pad20.Reversed = True

doc.recompute()
